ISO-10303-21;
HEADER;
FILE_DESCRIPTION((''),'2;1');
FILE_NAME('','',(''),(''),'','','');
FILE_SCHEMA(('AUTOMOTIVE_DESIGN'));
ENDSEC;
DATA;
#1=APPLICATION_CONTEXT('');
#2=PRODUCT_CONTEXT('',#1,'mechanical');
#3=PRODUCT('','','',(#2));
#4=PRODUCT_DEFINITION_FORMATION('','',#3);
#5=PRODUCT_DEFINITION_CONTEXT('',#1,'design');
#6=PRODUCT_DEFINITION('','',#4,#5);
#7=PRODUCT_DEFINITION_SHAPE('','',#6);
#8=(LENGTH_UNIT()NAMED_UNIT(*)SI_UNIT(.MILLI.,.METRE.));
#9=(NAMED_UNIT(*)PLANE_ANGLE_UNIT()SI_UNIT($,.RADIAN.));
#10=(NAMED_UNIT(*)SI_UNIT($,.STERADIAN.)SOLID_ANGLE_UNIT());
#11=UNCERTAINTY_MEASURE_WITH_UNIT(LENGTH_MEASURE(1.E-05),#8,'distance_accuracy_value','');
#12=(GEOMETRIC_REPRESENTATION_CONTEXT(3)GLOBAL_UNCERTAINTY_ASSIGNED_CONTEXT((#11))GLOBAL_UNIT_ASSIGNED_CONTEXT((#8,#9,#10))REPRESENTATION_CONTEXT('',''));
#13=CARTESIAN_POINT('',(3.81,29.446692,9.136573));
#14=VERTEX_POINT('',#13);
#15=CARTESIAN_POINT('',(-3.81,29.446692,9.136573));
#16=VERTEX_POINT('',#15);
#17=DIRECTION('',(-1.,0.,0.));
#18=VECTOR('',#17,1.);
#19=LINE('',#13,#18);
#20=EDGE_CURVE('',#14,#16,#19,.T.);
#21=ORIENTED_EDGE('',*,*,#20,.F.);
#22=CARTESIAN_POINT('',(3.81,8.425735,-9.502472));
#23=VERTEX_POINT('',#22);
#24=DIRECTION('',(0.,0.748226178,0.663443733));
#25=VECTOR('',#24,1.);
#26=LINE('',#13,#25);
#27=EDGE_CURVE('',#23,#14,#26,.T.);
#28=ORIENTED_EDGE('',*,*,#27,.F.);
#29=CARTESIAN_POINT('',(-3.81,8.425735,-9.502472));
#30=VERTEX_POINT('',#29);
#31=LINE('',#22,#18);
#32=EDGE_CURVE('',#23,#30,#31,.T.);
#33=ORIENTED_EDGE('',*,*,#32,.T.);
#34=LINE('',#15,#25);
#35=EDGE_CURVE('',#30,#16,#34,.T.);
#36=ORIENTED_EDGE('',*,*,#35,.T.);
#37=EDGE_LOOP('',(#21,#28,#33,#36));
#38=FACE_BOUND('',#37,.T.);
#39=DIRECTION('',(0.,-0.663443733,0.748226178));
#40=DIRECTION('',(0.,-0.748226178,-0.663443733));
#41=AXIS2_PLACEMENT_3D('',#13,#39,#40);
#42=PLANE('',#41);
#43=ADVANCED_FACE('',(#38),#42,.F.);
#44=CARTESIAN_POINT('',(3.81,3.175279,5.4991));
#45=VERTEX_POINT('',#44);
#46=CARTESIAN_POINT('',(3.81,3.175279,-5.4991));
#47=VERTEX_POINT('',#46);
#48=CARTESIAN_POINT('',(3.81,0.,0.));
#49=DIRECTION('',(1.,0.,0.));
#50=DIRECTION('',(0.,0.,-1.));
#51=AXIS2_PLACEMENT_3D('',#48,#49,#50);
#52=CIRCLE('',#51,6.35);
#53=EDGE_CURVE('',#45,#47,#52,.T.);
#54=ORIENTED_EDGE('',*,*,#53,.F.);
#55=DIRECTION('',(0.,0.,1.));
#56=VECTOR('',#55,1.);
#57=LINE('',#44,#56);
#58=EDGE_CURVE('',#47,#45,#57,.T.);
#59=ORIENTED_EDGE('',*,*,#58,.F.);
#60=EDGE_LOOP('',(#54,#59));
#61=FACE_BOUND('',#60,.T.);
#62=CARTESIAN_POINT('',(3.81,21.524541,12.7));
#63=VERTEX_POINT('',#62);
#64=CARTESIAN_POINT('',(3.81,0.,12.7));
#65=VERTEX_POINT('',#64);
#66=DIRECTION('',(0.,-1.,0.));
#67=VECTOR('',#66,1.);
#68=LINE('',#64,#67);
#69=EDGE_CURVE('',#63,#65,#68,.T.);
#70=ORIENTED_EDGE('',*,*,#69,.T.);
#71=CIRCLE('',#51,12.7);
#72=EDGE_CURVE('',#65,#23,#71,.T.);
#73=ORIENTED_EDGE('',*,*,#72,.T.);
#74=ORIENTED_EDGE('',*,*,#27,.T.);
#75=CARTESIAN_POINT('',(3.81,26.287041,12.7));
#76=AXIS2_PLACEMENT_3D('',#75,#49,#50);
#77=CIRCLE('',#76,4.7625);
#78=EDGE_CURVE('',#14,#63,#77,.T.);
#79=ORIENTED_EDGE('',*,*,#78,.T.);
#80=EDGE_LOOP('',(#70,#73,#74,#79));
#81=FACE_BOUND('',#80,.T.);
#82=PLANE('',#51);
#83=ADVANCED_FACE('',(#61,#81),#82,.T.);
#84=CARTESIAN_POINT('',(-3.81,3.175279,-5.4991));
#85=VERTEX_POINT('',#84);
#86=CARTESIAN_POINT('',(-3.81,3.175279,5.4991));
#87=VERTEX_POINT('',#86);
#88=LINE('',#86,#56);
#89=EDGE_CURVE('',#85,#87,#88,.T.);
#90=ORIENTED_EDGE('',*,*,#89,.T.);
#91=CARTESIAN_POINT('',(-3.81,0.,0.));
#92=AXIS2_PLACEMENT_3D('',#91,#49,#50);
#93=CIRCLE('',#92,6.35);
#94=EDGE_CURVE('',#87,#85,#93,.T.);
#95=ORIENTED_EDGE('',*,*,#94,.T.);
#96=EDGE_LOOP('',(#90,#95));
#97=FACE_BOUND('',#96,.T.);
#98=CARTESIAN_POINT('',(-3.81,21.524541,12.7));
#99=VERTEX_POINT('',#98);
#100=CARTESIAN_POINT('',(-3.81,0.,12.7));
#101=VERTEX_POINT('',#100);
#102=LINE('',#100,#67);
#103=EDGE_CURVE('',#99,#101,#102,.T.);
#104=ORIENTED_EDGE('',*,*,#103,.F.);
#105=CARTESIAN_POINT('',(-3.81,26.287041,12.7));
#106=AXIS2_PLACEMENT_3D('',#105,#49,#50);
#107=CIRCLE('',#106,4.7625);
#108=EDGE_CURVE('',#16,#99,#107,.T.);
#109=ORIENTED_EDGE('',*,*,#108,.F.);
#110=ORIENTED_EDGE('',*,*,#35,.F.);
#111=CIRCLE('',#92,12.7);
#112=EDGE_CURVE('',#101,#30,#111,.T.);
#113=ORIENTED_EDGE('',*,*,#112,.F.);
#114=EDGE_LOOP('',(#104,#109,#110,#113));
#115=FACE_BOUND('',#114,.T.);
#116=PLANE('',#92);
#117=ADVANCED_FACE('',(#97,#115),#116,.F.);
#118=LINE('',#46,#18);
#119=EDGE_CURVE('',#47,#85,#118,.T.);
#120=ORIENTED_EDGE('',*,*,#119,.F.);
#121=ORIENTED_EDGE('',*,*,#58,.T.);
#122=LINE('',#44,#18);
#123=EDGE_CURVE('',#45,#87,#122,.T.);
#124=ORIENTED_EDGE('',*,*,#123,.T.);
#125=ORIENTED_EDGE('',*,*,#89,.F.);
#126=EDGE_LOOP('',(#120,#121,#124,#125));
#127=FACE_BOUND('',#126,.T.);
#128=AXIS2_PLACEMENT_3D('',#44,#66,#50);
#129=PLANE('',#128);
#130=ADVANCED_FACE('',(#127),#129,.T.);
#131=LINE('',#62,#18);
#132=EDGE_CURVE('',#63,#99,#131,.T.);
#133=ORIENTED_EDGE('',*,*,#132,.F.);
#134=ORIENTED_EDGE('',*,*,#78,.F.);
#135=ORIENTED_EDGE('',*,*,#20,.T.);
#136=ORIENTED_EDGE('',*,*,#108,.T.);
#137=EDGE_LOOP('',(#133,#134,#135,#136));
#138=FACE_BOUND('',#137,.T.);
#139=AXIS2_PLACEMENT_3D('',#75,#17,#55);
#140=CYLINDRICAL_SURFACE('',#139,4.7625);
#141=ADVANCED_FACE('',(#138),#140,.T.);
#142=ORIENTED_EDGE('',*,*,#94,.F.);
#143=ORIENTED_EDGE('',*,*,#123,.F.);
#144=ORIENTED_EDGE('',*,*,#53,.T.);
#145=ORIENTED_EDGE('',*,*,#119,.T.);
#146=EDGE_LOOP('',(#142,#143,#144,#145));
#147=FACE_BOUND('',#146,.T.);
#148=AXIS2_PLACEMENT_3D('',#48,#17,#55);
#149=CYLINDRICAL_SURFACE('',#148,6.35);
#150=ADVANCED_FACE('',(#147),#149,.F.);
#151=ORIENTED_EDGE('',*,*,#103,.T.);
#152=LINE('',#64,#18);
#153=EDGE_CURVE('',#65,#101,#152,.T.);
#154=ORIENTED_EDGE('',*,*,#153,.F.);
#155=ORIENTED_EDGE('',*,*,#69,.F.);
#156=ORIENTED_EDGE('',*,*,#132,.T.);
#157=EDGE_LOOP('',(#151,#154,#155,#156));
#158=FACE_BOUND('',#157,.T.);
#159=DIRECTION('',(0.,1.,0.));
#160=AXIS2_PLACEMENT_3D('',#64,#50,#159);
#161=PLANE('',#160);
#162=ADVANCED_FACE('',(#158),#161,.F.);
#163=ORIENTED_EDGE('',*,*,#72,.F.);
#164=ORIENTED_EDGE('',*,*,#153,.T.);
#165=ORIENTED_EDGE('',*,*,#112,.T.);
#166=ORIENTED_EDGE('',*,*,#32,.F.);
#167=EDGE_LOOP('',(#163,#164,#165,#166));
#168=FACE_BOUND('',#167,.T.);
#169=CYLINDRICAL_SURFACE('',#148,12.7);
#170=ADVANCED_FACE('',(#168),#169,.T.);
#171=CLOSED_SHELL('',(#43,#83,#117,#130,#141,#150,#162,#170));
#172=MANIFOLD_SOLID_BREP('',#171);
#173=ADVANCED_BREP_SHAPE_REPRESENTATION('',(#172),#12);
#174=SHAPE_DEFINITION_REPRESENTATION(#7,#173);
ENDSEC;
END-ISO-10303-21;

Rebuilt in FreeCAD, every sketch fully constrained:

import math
import FreeCAD as App
import Part
import Sketcher
from FreeCAD import Vector
Q = App.Units.Quantity

doc = App.newDocument("Part")
params = doc.addObject("Spreadsheet::Sheet", "Params")
for row, (alias, value) in enumerate([
    ("sketch1_radius", "0.5 in"),
    ("sketch1_radius2", "0.25 in"),
    ("sketch1_radius3", "0.1875 in"),
    ("sketch1_height", "0.433 in"),
    ("pad1_length", "0.3 in"),
], start=1):
    params.set(f"A{row}", alias)
    params.set(f"B{row}", "=" + value)
    params.setAlias(f"B{row}", alias)

body = doc.addObject("PartDesign::Body", "Body")

# Sketch on YZ plane
sketch1 = doc.addObject("Sketcher::SketchObject", "Sketch")
body.addObject(sketch1)
sketch1.AttachmentSupport = (doc.YZ_Plane, [""])
sketch1.MapMode = "FlatFace"
sketch1.addGeometry(Part.LineSegment(Vector(21.5, 12.7, 0), Vector(0, 12.7, 0)), False)
sketch1.addGeometry(Part.ArcOfCircle(Part.Circle(Vector(0, 0, 0), Vector(0, 0, 1), 12.7), math.radians(90), math.radians(312)), False)
sketch1.addGeometry(Part.LineSegment(Vector(8.4, -9.5, 0), Vector(29.4, 9.1, 0)), False)
sketch1.addGeometry(Part.ArcOfCircle(Part.Circle(Vector(26.3, 12.7, 0), Vector(0, 0, 1), 4.8), math.radians(-48), math.radians(180)), False)
sketch1.addGeometry(Part.LineSegment(Vector(3.2, 5.5, 0), Vector(3.2, -5.5, 0)), False)
sketch1.addGeometry(Part.ArcOfCircle(Part.Circle(Vector(0, 0, 0), Vector(0, 0, 1), 6.3), math.radians(60), math.radians(300)), False)
sketch1.addConstraint(Sketcher.Constraint("Tangent", 0, 2, 1, 1))
sketch1.addConstraint(Sketcher.Constraint("Tangent", 1, 2, 2, 1))
sketch1.addConstraint(Sketcher.Constraint("Tangent", 2, 2, 3, 1))
sketch1.addConstraint(Sketcher.Constraint("Coincident", 3, 2, 0, 1))
sketch1.addConstraint(Sketcher.Constraint("Coincident", 4, 1, 5, 1))
sketch1.addConstraint(Sketcher.Constraint("Coincident", 5, 2, 4, 2))
sketch1.addConstraint(Sketcher.Constraint("Horizontal", 0))
sketch1.addConstraint(Sketcher.Constraint("Vertical", 4))
sketch1.addConstraint(Sketcher.Constraint("Coincident", 1, 3, -1, 1))
sketch1.addConstraint(Sketcher.Constraint("Coincident", 5, 3, -1, 1))
sketch1.addConstraint(Sketcher.Constraint("Horizontal", 3, 3, 0, 2))
sketch1.addConstraint(Sketcher.Constraint("Radius", 1, Q("0.5 in")))
sketch1.addConstraint(Sketcher.Constraint("Radius", 5, Q("0.25 in")))
sketch1.addConstraint(Sketcher.Constraint("Radius", 3, Q("0.1875 in")))
sketch1.addConstraint(Sketcher.Constraint("DistanceY", 4, 2, 4, 1, Q("0.433 in")))
sketch1.addConstraint(Sketcher.Constraint("DistanceX", 0, 2, 0, 1, 21.524541))
sketch1.setExpression("Constraints[11]", "Params.sketch1_radius")
sketch1.setExpression("Constraints[12]", "Params.sketch1_radius2")
sketch1.setExpression("Constraints[13]", "Params.sketch1_radius3")
sketch1.setExpression("Constraints[14]", "Params.sketch1_height")
pad1 = doc.addObject("PartDesign::Pad", "Pad")
body.addObject(pad1)
pad1.Profile = sketch1
pad1.setExpression("Length", "Params.pad1_length")
pad1.Midplane = True

doc.recompute()
